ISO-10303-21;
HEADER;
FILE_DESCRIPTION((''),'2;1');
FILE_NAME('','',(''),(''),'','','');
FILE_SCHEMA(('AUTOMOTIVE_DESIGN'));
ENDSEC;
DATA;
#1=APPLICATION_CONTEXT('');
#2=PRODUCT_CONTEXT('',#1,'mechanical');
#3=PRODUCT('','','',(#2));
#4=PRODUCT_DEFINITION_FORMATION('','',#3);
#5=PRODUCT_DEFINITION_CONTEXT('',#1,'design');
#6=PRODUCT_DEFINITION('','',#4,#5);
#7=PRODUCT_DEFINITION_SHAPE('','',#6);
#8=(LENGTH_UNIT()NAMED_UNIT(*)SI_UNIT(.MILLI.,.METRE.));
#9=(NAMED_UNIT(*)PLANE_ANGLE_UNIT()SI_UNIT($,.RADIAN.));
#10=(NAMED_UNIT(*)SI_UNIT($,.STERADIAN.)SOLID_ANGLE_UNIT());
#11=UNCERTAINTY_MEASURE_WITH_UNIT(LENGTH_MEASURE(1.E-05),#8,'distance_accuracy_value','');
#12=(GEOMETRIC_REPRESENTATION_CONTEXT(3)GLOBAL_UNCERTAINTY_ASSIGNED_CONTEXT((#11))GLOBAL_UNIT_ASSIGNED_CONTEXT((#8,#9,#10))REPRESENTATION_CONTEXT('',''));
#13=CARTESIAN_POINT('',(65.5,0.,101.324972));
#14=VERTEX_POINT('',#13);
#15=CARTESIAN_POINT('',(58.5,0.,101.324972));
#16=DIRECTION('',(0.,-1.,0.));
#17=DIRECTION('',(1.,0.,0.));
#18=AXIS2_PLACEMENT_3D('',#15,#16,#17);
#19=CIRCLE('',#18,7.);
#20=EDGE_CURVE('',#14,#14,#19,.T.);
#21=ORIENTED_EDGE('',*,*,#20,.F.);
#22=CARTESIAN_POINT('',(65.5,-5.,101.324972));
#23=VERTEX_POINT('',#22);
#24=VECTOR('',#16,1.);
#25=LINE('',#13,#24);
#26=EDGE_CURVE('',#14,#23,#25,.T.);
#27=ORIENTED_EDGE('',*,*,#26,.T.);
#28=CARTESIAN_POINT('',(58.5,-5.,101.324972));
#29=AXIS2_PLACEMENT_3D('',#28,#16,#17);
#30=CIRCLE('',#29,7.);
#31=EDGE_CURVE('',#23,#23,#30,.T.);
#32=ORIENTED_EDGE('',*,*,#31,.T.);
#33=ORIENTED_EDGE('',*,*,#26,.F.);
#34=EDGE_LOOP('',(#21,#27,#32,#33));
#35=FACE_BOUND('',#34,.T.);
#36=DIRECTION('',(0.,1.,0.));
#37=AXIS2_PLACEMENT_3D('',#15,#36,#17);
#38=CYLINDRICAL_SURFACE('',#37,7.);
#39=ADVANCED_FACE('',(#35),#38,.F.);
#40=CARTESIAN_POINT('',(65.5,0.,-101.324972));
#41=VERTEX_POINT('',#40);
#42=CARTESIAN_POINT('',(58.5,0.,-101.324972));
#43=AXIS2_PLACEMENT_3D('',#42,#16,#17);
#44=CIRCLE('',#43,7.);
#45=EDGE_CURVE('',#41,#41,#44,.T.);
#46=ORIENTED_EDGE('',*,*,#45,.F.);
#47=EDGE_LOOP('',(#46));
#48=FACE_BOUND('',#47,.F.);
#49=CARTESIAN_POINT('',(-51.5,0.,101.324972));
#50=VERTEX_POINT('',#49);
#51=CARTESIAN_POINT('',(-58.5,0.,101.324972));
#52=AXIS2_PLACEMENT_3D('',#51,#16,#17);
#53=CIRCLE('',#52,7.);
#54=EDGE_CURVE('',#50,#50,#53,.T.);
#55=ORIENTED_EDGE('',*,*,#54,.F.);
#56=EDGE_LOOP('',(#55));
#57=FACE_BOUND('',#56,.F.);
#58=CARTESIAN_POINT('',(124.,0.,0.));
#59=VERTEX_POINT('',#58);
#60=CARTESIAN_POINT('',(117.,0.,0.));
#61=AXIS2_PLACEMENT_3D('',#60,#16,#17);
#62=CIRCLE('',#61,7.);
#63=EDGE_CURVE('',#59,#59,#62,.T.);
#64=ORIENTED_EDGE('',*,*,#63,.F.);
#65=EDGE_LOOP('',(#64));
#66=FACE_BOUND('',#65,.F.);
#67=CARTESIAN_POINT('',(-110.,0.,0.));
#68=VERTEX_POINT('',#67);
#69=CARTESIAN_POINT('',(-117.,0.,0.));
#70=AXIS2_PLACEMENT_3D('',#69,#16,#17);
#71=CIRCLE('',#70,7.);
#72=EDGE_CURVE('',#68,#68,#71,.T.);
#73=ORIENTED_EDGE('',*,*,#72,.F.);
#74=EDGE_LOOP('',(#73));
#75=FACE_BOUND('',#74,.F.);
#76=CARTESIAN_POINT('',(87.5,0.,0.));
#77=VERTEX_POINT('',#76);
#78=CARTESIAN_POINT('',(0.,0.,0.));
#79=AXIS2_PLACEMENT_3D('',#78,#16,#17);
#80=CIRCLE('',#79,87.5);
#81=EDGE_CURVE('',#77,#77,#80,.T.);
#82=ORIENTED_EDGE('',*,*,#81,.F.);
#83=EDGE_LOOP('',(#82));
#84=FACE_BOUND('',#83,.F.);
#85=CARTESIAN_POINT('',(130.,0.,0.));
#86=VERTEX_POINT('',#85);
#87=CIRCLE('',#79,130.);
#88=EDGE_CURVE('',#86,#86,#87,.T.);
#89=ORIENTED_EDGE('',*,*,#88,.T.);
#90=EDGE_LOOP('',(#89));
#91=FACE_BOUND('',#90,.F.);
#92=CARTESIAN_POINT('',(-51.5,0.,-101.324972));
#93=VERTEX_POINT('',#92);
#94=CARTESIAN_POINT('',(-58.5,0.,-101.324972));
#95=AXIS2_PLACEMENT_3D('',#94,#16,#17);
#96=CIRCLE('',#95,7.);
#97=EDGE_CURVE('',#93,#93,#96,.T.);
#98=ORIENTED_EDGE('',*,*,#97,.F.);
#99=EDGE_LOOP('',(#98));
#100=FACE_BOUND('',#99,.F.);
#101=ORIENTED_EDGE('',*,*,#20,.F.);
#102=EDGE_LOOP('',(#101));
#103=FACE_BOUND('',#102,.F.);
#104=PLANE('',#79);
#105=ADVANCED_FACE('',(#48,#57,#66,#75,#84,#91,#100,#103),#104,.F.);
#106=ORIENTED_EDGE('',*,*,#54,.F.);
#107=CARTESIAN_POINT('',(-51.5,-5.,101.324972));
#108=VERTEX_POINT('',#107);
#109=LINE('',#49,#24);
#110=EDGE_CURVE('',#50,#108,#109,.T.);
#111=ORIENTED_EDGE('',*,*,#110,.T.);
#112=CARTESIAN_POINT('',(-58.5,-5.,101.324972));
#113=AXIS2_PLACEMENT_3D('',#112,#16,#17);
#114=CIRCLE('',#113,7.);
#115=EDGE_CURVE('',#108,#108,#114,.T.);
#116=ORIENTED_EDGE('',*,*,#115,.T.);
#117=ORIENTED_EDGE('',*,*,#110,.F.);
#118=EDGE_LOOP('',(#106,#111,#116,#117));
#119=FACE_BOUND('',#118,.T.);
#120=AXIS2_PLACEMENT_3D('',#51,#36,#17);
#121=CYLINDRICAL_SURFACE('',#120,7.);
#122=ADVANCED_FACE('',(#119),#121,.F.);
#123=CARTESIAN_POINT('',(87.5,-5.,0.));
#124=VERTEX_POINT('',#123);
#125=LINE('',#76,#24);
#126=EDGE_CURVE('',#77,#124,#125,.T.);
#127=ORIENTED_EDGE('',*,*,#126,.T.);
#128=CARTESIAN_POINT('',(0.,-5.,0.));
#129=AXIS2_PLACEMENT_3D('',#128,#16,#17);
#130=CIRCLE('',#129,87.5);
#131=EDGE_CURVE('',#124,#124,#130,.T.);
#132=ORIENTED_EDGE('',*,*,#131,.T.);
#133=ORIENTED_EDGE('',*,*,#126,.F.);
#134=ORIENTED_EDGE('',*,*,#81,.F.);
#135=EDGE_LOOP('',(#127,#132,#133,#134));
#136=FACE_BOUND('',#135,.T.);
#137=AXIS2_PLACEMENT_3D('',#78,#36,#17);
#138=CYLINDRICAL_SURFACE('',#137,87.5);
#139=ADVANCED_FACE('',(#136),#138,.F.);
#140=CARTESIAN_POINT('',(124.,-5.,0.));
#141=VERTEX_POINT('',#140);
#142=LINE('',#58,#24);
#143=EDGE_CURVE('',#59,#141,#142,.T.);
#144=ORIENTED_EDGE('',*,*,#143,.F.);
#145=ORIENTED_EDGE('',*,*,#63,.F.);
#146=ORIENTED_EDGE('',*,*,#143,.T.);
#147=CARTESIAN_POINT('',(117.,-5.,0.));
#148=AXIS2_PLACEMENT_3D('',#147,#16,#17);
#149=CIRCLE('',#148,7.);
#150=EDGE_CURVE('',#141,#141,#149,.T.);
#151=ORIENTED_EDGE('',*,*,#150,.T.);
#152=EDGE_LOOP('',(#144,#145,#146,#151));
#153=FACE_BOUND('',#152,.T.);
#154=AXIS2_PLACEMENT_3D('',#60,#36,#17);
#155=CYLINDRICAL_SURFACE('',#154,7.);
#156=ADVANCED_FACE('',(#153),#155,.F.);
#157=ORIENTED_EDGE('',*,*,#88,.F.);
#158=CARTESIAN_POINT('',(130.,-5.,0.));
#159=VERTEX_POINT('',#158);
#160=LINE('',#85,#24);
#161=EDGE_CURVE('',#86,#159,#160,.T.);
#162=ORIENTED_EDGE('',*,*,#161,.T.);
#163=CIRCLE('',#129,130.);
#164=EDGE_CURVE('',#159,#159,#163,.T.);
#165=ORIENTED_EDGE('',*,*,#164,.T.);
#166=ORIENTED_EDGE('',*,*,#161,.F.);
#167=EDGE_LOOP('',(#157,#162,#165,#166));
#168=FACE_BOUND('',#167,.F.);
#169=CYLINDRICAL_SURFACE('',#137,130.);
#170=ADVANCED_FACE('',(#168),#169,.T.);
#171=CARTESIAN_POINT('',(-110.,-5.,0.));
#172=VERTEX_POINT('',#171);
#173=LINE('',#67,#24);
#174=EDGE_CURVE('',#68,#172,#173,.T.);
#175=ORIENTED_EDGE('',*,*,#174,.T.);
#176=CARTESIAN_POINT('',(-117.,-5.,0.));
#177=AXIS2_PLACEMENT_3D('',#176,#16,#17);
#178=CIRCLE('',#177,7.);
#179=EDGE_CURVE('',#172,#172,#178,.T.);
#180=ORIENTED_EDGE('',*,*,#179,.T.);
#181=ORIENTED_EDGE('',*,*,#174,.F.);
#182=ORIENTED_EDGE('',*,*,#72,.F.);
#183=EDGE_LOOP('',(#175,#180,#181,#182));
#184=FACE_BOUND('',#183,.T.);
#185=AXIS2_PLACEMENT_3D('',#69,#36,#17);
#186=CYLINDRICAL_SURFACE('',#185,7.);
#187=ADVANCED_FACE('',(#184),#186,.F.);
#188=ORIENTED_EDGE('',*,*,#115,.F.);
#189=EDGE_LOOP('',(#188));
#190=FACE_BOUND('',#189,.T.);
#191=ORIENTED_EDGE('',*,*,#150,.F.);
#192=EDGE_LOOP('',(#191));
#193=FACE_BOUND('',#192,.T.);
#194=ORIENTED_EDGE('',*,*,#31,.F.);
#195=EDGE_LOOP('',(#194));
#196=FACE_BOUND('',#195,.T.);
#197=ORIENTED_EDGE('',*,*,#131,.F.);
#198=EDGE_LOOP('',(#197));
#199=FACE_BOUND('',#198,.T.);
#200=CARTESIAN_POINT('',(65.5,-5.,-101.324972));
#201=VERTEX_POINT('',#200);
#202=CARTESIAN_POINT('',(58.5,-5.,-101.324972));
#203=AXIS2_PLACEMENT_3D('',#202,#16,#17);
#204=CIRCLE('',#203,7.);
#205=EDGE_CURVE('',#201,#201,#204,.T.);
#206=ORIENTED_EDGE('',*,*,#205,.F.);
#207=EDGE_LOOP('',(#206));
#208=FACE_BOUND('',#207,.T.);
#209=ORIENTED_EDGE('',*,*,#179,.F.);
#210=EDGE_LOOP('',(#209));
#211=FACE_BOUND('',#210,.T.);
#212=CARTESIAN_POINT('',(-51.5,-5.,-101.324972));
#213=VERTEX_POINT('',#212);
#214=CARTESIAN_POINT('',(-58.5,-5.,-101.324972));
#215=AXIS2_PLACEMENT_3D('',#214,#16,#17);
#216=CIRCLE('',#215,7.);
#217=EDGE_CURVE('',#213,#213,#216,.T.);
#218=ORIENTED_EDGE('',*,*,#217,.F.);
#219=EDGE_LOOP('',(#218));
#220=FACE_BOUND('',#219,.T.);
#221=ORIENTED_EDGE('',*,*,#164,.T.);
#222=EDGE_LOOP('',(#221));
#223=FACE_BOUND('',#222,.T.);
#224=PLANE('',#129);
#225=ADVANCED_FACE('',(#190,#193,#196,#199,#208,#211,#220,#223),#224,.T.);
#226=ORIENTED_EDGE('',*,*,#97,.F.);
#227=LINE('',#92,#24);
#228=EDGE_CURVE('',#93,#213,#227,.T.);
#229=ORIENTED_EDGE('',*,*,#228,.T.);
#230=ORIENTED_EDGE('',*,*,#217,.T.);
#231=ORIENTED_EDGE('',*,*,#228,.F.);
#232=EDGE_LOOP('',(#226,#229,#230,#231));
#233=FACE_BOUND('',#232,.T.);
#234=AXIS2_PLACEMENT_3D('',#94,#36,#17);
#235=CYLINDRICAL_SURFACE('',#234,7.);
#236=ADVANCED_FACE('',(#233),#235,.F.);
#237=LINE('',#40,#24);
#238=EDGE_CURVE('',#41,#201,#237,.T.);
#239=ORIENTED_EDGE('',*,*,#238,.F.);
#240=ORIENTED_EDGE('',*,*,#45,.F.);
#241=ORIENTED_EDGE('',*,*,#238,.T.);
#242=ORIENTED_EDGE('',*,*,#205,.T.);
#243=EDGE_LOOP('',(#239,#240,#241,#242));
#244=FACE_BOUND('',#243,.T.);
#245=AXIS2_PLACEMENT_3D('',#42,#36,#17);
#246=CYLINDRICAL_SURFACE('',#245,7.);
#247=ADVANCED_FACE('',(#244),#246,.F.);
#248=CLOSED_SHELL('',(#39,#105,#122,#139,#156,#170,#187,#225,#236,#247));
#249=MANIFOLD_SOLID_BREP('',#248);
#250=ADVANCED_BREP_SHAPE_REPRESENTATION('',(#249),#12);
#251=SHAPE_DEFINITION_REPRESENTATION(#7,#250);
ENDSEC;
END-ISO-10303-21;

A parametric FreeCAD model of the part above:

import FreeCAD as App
import Part
import Sketcher
from FreeCAD import Vector

doc = App.newDocument("Part")
params = doc.addObject("Spreadsheet::Sheet", "Params")
for row, (alias, value) in enumerate([
    ("sketch1_diameter", "260 mm"),
    ("sketch1_diameter2", "14 mm"),
    ("sketch1_diameter3", "175 mm"),
    ("pad1_length", "5 mm"),
], start=1):
    params.set(f"A{row}", alias)
    params.set(f"B{row}", "=" + value)
    params.setAlias(f"B{row}", alias)

body = doc.addObject("PartDesign::Body", "Body")

sketch1 = doc.addObject("Sketcher::SketchObject", "Sketch")
body.addObject(sketch1)
sketch1.AttachmentSupport = (doc.XZ_Plane, [""])
sketch1.MapMode = "FlatFace"
sketch1.addGeometry(Part.Circle(Vector(0, 0, 0), Vector(0, 0, 1), 130), False)
sketch1.addGeometry(Part.Circle(Vector(-58, -101, 0), Vector(0, 0, 1), 7), False)
sketch1.addGeometry(Part.Circle(Vector(-117, 0, 0), Vector(0, 0, 1), 7), False)
sketch1.addGeometry(Part.Circle(Vector(58, -101, 0), Vector(0, 0, 1), 7), False)
sketch1.addGeometry(Part.Circle(Vector(0, 0, 0), Vector(0, 0, 1), 88), False)
sketch1.addGeometry(Part.Circle(Vector(117, 0, 0), Vector(0, 0, 1), 7), False)
sketch1.addGeometry(Part.Circle(Vector(-58, 101, 0), Vector(0, 0, 1), 7), False)
sketch1.addGeometry(Part.Circle(Vector(58, 101, 0), Vector(0, 0, 1), 7), False)
sketch1.addConstraint(Sketcher.Constraint("Coincident", 0, 3, -1, 1))
sketch1.addConstraint(Sketcher.Constraint("Coincident", 4, 3, -1, 1))
sketch1.addConstraint(Sketcher.Constraint("Equal", 1, 2))
sketch1.addConstraint(Sketcher.Constraint("Equal", 2, 3))
sketch1.addConstraint(Sketcher.Constraint("Equal", 3, 5))
sketch1.addConstraint(Sketcher.Constraint("Equal", 5, 6))
sketch1.addConstraint(Sketcher.Constraint("Equal", 6, 7))
sketch1.addConstraint(Sketcher.Constraint("Symmetric", 2, 3, 5, 3, -1, 1))
sketch1.addConstraint(Sketcher.Constraint("Symmetric", 3, 3, 6, 3, -1, 1))
sketch1.addConstraint(Sketcher.Constraint("Symmetric", 1, 3, 7, 3, -1, 1))
sketch1.addConstraint(Sketcher.Constraint("Symmetric", 1, 3, 3, 3, -2))
sketch1.addConstraint(Sketcher.Constraint("PointOnObject", 2, 3, -1))
sketch1.addConstraint(Sketcher.Constraint("Diameter", 0, 260.0))
sketch1.addConstraint(Sketcher.Constraint("Diameter", 1, 14.0))
sketch1.addConstraint(Sketcher.Constraint("Diameter", 4, 175.0))
sketch1.addConstraint(Sketcher.Constraint("DistanceX", 2, 3, -1, 1, 117.0))
sketch1.addConstraint(Sketcher.Constraint("DistanceX", 1, 3, 3, 3, 117.0))
sketch1.addConstraint(Sketcher.Constraint("DistanceY", 1, 3, -1, 1, 101.324972))
sketch1.setExpression("Constraints[12]", "Params.sketch1_diameter")
sketch1.setExpression("Constraints[13]", "Params.sketch1_diameter2")
sketch1.setExpression("Constraints[14]", "Params.sketch1_diameter3")
pad1 = doc.addObject("PartDesign::Pad", "Pad")
body.addObject(pad1)
pad1.Profile = sketch1
pad1.setExpression("Length", "Params.pad1_length")

doc.recompute()
